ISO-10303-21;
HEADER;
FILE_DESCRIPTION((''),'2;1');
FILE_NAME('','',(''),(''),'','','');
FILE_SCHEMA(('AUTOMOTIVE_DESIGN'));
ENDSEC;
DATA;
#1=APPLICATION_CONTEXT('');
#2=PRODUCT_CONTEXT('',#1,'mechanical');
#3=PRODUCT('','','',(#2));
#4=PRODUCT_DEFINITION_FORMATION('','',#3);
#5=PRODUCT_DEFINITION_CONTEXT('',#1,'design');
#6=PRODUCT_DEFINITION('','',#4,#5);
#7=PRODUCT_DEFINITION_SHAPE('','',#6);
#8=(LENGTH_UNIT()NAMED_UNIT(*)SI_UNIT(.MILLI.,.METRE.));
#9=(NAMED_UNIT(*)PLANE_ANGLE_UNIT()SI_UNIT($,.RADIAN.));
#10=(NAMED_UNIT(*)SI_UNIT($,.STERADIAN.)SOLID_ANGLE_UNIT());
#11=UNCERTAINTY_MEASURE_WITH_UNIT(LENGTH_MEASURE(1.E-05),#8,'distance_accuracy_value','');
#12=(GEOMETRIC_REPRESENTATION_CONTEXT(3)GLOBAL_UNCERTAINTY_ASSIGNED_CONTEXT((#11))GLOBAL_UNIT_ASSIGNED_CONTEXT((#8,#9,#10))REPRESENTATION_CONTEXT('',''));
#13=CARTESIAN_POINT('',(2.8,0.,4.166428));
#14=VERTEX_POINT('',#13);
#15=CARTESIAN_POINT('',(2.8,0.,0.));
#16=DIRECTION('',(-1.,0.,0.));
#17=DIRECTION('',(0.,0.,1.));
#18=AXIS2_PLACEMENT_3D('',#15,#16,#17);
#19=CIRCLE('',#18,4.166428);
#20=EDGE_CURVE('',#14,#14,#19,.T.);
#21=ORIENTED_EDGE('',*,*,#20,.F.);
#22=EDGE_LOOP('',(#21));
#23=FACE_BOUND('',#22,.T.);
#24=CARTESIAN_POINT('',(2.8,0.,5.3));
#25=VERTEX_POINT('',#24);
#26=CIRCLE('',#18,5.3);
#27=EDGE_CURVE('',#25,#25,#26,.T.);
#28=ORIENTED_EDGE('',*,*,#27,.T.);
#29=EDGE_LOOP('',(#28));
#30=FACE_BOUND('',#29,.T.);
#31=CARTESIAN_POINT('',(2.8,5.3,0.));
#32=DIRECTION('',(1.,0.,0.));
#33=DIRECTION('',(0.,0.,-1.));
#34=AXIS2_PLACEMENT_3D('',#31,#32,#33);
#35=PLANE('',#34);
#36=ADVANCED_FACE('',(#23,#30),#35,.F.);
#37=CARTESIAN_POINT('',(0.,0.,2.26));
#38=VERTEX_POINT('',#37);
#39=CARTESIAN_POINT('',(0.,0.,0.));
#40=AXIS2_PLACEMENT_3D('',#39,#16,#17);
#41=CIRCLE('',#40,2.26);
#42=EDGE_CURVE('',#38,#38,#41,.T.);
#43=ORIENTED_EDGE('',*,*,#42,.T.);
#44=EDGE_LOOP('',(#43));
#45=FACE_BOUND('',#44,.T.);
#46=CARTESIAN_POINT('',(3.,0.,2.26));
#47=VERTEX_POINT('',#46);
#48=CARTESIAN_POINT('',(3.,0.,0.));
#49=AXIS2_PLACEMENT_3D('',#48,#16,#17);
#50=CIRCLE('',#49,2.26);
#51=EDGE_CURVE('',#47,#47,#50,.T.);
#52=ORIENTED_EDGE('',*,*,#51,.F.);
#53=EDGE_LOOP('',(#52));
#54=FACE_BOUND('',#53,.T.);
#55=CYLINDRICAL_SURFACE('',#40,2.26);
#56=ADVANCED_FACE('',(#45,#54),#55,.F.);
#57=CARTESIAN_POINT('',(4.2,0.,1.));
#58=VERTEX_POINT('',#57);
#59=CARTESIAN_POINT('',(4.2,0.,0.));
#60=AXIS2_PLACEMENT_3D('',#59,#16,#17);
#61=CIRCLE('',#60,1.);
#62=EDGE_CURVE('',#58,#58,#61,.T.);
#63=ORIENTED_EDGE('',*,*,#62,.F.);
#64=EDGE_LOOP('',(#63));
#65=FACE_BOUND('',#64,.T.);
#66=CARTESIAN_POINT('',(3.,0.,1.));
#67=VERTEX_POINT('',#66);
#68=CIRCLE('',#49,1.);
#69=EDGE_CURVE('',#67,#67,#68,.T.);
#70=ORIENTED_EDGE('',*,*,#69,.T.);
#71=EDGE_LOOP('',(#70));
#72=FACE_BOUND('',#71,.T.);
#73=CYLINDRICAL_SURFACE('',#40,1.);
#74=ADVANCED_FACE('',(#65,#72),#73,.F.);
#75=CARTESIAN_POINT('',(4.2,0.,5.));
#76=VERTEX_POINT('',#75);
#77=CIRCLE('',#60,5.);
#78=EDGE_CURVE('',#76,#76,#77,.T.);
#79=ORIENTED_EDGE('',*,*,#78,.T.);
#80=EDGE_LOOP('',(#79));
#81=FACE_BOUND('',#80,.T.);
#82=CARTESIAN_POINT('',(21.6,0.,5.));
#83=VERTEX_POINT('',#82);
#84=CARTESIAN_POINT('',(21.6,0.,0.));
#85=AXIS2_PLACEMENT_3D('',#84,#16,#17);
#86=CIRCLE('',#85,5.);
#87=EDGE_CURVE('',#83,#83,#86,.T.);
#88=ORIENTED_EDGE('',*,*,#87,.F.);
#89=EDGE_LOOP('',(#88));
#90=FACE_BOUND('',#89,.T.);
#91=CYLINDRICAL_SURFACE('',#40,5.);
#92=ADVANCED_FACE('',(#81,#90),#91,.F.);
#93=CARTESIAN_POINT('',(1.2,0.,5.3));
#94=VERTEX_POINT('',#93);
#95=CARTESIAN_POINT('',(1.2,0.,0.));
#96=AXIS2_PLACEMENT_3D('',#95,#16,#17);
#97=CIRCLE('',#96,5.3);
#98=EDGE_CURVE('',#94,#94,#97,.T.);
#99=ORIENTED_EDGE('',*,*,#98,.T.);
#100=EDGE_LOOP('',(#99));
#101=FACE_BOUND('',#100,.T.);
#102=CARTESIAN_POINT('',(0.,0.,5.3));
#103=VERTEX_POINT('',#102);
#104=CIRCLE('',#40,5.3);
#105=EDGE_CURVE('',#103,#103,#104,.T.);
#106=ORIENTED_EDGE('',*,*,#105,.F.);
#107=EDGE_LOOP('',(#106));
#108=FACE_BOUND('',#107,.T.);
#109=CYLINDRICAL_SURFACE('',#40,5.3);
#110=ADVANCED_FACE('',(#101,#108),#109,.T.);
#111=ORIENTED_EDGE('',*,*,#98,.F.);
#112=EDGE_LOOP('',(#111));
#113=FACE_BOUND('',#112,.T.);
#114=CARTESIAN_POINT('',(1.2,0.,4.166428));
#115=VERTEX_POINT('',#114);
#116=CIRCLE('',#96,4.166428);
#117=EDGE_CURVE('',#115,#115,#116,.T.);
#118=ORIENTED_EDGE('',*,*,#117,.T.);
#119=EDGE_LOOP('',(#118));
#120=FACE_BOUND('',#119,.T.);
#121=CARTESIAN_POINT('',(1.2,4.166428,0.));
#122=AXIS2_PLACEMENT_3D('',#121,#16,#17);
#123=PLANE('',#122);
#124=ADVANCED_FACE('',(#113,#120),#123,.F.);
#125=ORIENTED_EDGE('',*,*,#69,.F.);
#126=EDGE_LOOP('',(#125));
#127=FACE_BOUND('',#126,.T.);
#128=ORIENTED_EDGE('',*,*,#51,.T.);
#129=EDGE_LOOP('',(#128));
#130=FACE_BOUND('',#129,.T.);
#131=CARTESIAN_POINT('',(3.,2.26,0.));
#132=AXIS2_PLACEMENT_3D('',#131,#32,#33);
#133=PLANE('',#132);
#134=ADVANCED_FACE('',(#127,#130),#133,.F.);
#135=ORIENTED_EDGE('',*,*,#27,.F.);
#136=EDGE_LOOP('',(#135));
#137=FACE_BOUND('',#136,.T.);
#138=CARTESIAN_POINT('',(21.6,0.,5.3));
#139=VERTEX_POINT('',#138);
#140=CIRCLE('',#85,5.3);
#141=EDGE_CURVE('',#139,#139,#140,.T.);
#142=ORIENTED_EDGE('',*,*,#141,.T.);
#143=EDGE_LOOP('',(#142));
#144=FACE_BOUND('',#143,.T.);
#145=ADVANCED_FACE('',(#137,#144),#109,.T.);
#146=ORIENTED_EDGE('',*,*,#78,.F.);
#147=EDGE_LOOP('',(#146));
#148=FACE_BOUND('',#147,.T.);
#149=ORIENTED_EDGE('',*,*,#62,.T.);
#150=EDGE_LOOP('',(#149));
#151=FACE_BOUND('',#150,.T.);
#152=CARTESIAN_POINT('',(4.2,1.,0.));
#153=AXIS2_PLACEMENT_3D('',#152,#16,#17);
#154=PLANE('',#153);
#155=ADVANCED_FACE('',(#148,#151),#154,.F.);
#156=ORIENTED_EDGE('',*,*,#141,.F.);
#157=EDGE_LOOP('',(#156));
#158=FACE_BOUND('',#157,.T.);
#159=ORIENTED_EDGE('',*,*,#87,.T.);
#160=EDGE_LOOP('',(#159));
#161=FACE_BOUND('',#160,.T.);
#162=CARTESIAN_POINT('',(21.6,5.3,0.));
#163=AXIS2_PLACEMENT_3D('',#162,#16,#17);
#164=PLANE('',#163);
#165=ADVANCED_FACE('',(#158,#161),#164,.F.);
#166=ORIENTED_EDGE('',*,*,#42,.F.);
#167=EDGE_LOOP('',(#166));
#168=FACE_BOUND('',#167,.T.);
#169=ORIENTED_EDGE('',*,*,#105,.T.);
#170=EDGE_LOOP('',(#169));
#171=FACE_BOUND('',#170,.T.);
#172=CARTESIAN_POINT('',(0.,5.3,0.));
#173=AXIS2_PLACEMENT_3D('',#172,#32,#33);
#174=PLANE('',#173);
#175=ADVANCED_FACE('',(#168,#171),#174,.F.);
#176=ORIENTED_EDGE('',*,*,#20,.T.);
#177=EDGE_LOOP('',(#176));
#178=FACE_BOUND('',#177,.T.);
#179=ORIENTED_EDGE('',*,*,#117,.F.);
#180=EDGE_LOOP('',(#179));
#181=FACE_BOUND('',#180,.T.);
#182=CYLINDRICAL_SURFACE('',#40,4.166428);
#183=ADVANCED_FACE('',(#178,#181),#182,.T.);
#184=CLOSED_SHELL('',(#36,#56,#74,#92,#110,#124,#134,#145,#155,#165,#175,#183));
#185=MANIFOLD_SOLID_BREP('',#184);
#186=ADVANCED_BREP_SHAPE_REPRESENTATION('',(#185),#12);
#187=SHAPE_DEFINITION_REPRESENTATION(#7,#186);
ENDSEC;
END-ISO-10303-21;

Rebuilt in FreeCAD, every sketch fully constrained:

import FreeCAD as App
import Part
import Sketcher

V = App.Vector

doc = App.newDocument("Part")
body = doc.addObject("PartDesign::Body", "Body")

# Sketch on XY plane
sketch1 = body.newObject("Sketcher::SketchObject", "Sketch")
sketch1.AttachmentSupport = (doc.getObject("XY_Plane"), [""])
sketch1.MapMode = "FlatFace"
sketch1.addGeometry(Part.LineSegment(V(4.2, 1, 0), V(4.2, 5, 0)), False)
sketch1.addGeometry(Part.LineSegment(V(4.2, 5, 0), V(21.6, 5, 0)), False)
sketch1.addGeometry(Part.LineSegment(V(21.6, 5, 0), V(21.6, 5.3, 0)), False)
sketch1.addGeometry(Part.LineSegment(V(21.6, 5.3, 0), V(2.8, 5.3, 0)), False)
sketch1.addGeometry(Part.LineSegment(V(2.8, 5.3, 0), V(2.8, 4.17, 0)), False)
sketch1.addGeometry(Part.LineSegment(V(2.8, 4.17, 0), V(1.2, 4.17, 0)), False)
sketch1.addGeometry(Part.LineSegment(V(1.2, 4.17, 0), V(1.2, 5.3, 0)), False)
sketch1.addGeometry(Part.LineSegment(V(1.2, 5.3, 0), V(0, 5.3, 0)), False)
sketch1.addGeometry(Part.LineSegment(V(0, 5.3, 0), V(0, 2.26, 0)), False)
sketch1.addGeometry(Part.LineSegment(V(0, 2.26, 0), V(3, 2.26, 0)), False)
sketch1.addGeometry(Part.LineSegment(V(3, 2.26, 0), V(3, 1, 0)), False)
sketch1.addGeometry(Part.LineSegment(V(3, 1, 0), V(4.2, 1, 0)), False)
sketch1.addConstraint(Sketcher.Constraint("Coincident", 0, 2, 1, 1))
sketch1.addConstraint(Sketcher.Constraint("Coincident", 1, 2, 2, 1))
sketch1.addConstraint(Sketcher.Constraint("Coincident", 2, 2, 3, 1))
sketch1.addConstraint(Sketcher.Constraint("Coincident", 3, 2, 4, 1))
sketch1.addConstraint(Sketcher.Constraint("Coincident", 4, 2, 5, 1))
sketch1.addConstraint(Sketcher.Constraint("Coincident", 5, 2, 6, 1))
sketch1.addConstraint(Sketcher.Constraint("Coincident", 6, 2, 7, 1))
sketch1.addConstraint(Sketcher.Constraint("Coincident", 7, 2, 8, 1))
sketch1.addConstraint(Sketcher.Constraint("Coincident", 8, 2, 9, 1))
sketch1.addConstraint(Sketcher.Constraint("Coincident", 9, 2, 10, 1))
sketch1.addConstraint(Sketcher.Constraint("Coincident", 10, 2, 11, 1))
sketch1.addConstraint(Sketcher.Constraint("Coincident", 11, 2, 0, 1))
sketch1.addConstraint(Sketcher.Constraint("Vertical", 0))
sketch1.addConstraint(Sketcher.Constraint("Horizontal", 1))
sketch1.addConstraint(Sketcher.Constraint("Vertical", 2))
sketch1.addConstraint(Sketcher.Constraint("Horizontal", 3))
sketch1.addConstraint(Sketcher.Constraint("Vertical", 4))
sketch1.addConstraint(Sketcher.Constraint("Horizontal", 5))
sketch1.addConstraint(Sketcher.Constraint("Vertical", 6))
sketch1.addConstraint(Sketcher.Constraint("Horizontal", 7))
sketch1.addConstraint(Sketcher.Constraint("Vertical", 8))
sketch1.addConstraint(Sketcher.Constraint("Horizontal", 9))
sketch1.addConstraint(Sketcher.Constraint("Vertical", 10))
sketch1.addConstraint(Sketcher.Constraint("Horizontal", 11))
sketch1.addConstraint(Sketcher.Constraint("PointOnObject", 7, 2, -2))
sketch1.addConstraint(Sketcher.Constraint("Horizontal", 3, 2, 6, 2))
sketch1.addConstraint(Sketcher.Constraint("Equal", 7, 11))
sketch1.addConstraint(Sketcher.Constraint("DistanceX", 9, 1, 9, 2, 3.0))
sketch1.addConstraint(Sketcher.Constraint("DistanceY", 0, 1, 0, 2, 4.0))
sketch1.addConstraint(Sketcher.Constraint("DistanceX", 1, 1, 1, 2, 17.4))
sketch1.addConstraint(Sketcher.Constraint("DistanceX", 3, 2, 3, 1, 18.8))
sketch1.addConstraint(Sketcher.Constraint("DistanceX", 7, 2, 7, 1, 1.2))
sketch1.addConstraint(Sketcher.Constraint("DistanceY", 2, 1, 2, 2, 0.3))
sketch1.addConstraint(Sketcher.Constraint("DistanceY", -1, 1, 0, 2, 5.0))
sketch1.addConstraint(Sketcher.Constraint("DistanceY", 8, 2, 8, 1, 3.04))
sketch1.addConstraint(Sketcher.Constraint("DistanceY", 4, 2, 4, 1, 1.133572))
revolution = body.newObject("PartDesign::Revolution", "Revolution")
revolution.Profile = sketch1
revolution.ReferenceAxis = (sketch1, ["H_Axis"])
revolution.Angle = 360

doc.recompute()
